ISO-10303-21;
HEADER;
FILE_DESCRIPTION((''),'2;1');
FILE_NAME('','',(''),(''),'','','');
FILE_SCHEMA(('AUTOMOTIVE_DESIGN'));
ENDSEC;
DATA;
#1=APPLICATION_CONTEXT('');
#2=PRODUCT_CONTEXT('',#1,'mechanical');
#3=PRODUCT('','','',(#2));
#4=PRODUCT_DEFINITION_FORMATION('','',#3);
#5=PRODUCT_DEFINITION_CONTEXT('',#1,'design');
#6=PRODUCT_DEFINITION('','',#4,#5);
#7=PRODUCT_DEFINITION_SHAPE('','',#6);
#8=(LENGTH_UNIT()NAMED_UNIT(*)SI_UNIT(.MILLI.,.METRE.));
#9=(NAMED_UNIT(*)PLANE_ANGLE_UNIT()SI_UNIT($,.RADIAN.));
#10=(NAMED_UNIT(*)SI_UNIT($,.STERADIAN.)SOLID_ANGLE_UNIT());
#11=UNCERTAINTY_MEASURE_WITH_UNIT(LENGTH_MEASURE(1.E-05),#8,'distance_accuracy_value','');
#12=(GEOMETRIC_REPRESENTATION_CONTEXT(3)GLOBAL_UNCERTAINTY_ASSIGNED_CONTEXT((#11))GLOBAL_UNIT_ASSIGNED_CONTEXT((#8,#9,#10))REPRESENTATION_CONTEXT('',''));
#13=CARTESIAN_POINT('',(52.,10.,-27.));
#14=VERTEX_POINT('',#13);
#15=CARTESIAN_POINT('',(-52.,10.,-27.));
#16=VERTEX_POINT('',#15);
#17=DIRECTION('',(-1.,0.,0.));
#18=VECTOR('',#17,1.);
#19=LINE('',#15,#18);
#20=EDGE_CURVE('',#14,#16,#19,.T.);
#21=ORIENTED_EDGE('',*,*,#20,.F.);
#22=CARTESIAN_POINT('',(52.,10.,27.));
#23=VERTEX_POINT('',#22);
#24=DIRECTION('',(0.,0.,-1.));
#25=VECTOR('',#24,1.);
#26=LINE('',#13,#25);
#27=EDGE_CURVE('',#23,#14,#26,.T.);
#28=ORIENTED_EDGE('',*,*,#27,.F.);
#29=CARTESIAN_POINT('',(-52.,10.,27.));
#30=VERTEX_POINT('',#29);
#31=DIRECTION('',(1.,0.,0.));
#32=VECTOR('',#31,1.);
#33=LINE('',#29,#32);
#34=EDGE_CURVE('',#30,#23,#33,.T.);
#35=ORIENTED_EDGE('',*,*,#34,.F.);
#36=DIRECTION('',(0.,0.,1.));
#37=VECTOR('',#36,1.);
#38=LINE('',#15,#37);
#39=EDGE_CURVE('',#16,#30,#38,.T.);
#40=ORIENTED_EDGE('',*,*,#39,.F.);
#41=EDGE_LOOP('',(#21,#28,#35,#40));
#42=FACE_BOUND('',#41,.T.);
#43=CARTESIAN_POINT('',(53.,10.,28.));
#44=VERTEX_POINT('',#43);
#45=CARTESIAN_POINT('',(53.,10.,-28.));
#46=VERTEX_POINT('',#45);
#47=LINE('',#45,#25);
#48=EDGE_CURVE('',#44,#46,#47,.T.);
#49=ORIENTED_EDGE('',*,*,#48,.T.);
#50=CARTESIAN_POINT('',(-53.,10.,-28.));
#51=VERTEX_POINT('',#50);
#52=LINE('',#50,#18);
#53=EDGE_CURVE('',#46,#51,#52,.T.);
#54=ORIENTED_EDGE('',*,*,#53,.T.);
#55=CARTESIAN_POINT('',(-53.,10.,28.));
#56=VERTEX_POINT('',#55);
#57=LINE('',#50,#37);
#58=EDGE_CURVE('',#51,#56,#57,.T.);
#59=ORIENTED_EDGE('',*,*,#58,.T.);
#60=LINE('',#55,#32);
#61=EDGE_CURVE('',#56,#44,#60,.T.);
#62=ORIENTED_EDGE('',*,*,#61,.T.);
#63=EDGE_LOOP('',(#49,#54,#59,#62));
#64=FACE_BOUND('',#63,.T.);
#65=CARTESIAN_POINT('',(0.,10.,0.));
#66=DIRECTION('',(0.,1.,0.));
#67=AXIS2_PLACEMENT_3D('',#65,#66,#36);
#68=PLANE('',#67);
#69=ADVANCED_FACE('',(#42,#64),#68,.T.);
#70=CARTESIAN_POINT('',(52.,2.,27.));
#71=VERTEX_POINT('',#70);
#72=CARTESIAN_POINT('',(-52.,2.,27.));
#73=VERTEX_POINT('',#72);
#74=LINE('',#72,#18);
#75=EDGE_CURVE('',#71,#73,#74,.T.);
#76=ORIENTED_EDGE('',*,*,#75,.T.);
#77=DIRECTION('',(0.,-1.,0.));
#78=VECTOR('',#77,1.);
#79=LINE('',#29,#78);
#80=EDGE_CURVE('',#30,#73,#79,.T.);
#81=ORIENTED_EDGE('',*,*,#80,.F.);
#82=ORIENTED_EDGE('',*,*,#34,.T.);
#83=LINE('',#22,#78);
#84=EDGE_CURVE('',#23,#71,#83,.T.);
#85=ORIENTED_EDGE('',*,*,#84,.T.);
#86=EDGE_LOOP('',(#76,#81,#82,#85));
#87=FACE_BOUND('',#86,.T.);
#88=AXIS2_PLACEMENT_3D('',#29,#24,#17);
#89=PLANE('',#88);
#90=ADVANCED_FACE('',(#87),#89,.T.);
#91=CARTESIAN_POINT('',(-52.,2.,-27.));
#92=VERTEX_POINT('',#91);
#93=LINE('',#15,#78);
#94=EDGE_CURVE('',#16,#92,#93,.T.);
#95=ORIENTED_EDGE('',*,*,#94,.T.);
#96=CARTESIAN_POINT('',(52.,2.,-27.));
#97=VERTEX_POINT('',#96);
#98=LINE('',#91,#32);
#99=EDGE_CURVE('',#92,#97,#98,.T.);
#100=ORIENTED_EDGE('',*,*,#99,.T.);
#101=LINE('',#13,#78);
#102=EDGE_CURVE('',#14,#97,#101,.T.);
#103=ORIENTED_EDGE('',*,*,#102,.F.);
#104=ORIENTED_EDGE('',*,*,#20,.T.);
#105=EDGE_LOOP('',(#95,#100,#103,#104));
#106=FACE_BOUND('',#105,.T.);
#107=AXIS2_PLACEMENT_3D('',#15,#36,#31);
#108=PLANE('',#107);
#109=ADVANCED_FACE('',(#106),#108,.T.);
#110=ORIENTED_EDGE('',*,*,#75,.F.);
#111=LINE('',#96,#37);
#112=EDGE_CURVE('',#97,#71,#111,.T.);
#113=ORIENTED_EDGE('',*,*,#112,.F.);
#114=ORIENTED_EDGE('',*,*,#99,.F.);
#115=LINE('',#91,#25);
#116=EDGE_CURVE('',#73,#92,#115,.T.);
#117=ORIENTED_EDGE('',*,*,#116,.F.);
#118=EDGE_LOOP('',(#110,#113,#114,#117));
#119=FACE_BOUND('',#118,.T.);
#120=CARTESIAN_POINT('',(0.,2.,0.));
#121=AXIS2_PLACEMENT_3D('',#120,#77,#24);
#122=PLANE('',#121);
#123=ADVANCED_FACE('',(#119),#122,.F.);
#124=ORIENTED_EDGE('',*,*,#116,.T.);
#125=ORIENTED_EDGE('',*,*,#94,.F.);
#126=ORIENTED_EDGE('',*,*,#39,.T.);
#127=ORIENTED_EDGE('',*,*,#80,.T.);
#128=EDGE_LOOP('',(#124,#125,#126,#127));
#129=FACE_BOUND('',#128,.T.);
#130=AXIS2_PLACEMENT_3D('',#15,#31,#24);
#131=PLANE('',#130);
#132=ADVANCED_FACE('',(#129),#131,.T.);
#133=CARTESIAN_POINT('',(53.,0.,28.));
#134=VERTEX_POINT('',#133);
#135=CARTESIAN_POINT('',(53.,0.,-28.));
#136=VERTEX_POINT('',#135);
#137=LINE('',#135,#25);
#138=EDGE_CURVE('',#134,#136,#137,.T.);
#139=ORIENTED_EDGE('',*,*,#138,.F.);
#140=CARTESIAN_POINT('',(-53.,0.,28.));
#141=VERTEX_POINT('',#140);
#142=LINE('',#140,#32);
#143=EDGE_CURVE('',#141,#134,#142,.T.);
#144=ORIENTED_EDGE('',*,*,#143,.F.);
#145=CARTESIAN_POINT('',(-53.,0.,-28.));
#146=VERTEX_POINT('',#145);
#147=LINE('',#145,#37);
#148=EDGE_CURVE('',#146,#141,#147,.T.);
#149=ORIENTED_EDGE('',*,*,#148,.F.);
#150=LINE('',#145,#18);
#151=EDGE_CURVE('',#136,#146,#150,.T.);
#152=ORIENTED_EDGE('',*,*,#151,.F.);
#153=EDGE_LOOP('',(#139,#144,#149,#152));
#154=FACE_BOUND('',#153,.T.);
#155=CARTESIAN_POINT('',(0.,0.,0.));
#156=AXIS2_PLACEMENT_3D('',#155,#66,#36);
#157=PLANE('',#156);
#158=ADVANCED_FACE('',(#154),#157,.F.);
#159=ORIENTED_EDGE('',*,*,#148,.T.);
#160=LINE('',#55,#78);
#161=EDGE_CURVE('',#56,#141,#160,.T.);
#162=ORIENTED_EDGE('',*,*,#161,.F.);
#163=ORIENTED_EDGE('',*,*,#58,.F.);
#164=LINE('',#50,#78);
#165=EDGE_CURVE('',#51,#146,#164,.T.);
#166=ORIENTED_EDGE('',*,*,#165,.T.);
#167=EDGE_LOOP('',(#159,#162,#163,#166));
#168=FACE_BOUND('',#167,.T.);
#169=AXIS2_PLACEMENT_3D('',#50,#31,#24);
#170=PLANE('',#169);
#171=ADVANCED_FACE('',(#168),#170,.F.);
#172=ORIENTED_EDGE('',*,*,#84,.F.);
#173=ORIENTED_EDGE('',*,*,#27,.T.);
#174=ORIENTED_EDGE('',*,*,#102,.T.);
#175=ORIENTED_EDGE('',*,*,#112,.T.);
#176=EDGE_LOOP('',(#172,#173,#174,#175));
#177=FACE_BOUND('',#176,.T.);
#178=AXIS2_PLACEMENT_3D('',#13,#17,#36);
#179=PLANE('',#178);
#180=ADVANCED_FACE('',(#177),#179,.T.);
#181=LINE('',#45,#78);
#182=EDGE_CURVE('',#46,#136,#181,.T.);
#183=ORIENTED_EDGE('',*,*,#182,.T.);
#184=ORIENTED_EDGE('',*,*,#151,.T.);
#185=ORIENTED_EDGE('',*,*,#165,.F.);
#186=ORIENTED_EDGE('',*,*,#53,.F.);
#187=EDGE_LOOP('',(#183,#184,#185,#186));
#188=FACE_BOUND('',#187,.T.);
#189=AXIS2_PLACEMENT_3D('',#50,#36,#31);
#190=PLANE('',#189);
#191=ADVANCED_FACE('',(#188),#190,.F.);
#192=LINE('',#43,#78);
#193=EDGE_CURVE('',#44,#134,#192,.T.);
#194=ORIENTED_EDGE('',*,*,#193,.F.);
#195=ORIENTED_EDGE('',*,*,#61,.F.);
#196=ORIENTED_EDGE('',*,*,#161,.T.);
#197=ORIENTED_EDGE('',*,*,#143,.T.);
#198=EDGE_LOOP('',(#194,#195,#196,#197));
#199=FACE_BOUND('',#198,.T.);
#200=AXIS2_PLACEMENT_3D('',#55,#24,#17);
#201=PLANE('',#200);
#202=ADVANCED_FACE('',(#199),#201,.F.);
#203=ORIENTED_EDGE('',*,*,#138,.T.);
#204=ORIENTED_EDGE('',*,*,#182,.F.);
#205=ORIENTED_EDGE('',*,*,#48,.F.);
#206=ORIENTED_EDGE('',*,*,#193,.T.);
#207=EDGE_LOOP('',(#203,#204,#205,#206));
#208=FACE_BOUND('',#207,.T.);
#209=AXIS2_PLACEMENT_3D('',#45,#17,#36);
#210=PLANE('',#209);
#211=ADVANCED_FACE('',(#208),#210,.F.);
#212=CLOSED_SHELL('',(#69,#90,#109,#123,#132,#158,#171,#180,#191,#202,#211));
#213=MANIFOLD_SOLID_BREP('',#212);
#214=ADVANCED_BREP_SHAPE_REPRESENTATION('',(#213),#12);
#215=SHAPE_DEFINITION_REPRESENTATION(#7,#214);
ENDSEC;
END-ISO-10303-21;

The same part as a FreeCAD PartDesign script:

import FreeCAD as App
import Part
import Sketcher

V = App.Vector

doc = App.newDocument("Part")
body = doc.addObject("PartDesign::Body", "Body")

# Sketch on XZ plane
sketch1 = body.newObject("Sketcher::SketchObject", "Sketch")
sketch1.AttachmentSupport = (doc.getObject("XZ_Plane"), [""])
sketch1.MapMode = "FlatFace"
sketch1.addGeometry(Part.LineSegment(V(-53, -28, 0), V(-53, 28, 0)), False)
sketch1.addGeometry(Part.LineSegment(V(-53, 28, 0), V(53, 28, 0)), False)
sketch1.addGeometry(Part.LineSegment(V(53, 28, 0), V(53, -28, 0)), False)
sketch1.addGeometry(Part.LineSegment(V(53, -28, 0), V(-53, -28, 0)), False)
sketch1.addGeometry(Part.LineSegment(V(52, 27, 0), V(-52, 27, 0)), False)
sketch1.addGeometry(Part.LineSegment(V(-52, 27, 0), V(-52, -27, 0)), False)
sketch1.addGeometry(Part.LineSegment(V(-52, -27, 0), V(52, -27, 0)), False)
sketch1.addGeometry(Part.LineSegment(V(52, -27, 0), V(52, 27, 0)), False)
sketch1.addConstraint(Sketcher.Constraint("Coincident", 0, 2, 1, 1))
sketch1.addConstraint(Sketcher.Constraint("Coincident", 1, 2, 2, 1))
sketch1.addConstraint(Sketcher.Constraint("Coincident", 2, 2, 3, 1))
sketch1.addConstraint(Sketcher.Constraint("Coincident", 3, 2, 0, 1))
sketch1.addConstraint(Sketcher.Constraint("Coincident", 4, 2, 5, 1))
sketch1.addConstraint(Sketcher.Constraint("Coincident", 5, 2, 6, 1))
sketch1.addConstraint(Sketcher.Constraint("Coincident", 6, 2, 7, 1))
sketch1.addConstraint(Sketcher.Constraint("Coincident", 7, 2, 4, 1))
sketch1.addConstraint(Sketcher.Constraint("Vertical", 0))
sketch1.addConstraint(Sketcher.Constraint("Horizontal", 1))
sketch1.addConstraint(Sketcher.Constraint("Vertical", 2))
sketch1.addConstraint(Sketcher.Constraint("Horizontal", 3))
sketch1.addConstraint(Sketcher.Constraint("Horizontal", 4))
sketch1.addConstraint(Sketcher.Constraint("Vertical", 5))
sketch1.addConstraint(Sketcher.Constraint("Horizontal", 6))
sketch1.addConstraint(Sketcher.Constraint("Vertical", 7))
sketch1.addConstraint(Sketcher.Constraint("Symmetric", 0, 2, 2, 2, -1, 1))
sketch1.addConstraint(Sketcher.Constraint("Symmetric", 4, 2, 6, 2, -1, 1))
sketch1.addConstraint(Sketcher.Constraint("DistanceX", 1, 1, 1, 2, 106.0))
sketch1.addConstraint(Sketcher.Constraint("DistanceX", 4, 2, 4, 1, 104.0))
sketch1.addConstraint(Sketcher.Constraint("DistanceY", 0, 1, 0, 2, 56.0))
sketch1.addConstraint(Sketcher.Constraint("DistanceY", 5, 2, 5, 1, 54.0))
pad1 = body.newObject("PartDesign::Pad", "Pad")
pad1.Profile = sketch1
pad1.Length = 10
pad1.Reversed = True

# Sketch on XZ plane
sketch2 = body.newObject("Sketcher::SketchObject", "Sketch001")
sketch2.AttachmentSupport = (doc.getObject("XZ_Plane"), [""])
sketch2.MapMode = "FlatFace"
sketch2.addGeometry(Part.LineSegment(V(-53, -28, 0), V(-53, 28, 0)), False)
sketch2.addGeometry(Part.LineSegment(V(-53, 28, 0), V(53, 28, 0)), False)
sketch2.addGeometry(Part.LineSegment(V(53, 28, 0), V(53, -28, 0)), False)
sketch2.addGeometry(Part.LineSegment(V(53, -28, 0), V(-53, -28, 0)), False)
sketch2.addConstraint(Sketcher.Constraint("Coincident", 0, 2, 1, 1))
sketch2.addConstraint(Sketcher.Constraint("Coincident", 1, 2, 2, 1))
sketch2.addConstraint(Sketcher.Constraint("Coincident", 2, 2, 3, 1))
sketch2.addConstraint(Sketcher.Constraint("Coincident", 3, 2, 0, 1))
sketch2.addConstraint(Sketcher.Constraint("Vertical", 0))
sketch2.addConstraint(Sketcher.Constraint("Horizontal", 1))
sketch2.addConstraint(Sketcher.Constraint("Vertical", 2))
sketch2.addConstraint(Sketcher.Constraint("Horizontal", 3))
sketch2.addConstraint(Sketcher.Constraint("Symmetric", 0, 2, 2, 2, -1, 1))
sketch2.addConstraint(Sketcher.Constraint("DistanceX", 1, 1, 1, 2, 106.0))
sketch2.addConstraint(Sketcher.Constraint("DistanceY", 0, 1, 0, 2, 56.0))
pad2 = body.newObject("PartDesign::Pad", "Pad001")
pad2.Profile = sketch2
pad2.Length = 2
pad2.Reversed = True

doc.recompute()
